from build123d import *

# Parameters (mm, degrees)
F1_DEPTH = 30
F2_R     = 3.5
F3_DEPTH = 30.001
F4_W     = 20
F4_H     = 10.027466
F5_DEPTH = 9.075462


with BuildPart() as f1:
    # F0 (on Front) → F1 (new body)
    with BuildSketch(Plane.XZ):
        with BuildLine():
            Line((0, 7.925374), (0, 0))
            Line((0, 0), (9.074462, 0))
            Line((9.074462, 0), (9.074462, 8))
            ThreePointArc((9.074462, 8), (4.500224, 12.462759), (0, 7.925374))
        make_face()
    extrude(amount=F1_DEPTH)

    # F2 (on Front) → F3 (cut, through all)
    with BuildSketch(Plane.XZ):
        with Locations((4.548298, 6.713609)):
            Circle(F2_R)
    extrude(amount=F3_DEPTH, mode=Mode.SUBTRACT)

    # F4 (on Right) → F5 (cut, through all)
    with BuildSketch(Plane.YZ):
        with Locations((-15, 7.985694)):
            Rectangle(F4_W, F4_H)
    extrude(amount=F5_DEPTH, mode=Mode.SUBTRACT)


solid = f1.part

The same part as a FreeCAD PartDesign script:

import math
import FreeCAD as App
import Part
import Sketcher
from FreeCAD import Vector


def add_polygon(sketch, points):
    """Adds a closed chain of lines whose ends are joined by coincident constraints."""
    first, n = sketch.GeometryCount, len(points)
    for a, b in zip(points, points[1:] + points[:1]):
        sketch.addGeometry(Part.LineSegment(App.Vector(*a, 0), App.Vector(*b, 0)), False)
    for i in range(n):
        sketch.addConstraint(Sketcher.Constraint("Coincident", first + i, 2, first + (i + 1) % n, 1))

doc = App.newDocument("Part")
body = doc.addObject("PartDesign::Body", "Body")

# Sketch on XZ plane
sketch1 = doc.addObject("Sketcher::SketchObject", "Sketch")
body.addObject(sketch1)
sketch1.AttachmentSupport = (doc.XZ_Plane, [""])
sketch1.MapMode = "FlatFace"
sketch1.addGeometry(Part.LineSegment(Vector(0, 7.9, 0), Vector(0, 0, 0)), False)
sketch1.addGeometry(Part.LineSegment(Vector(0, 0, 0), Vector(9.1, 0, 0)), False)
sketch1.addGeometry(Part.LineSegment(Vector(9.1, 0, 0), Vector(9.1, 8, 0)), False)
sketch1.addGeometry(Part.ArcOfCircle(Part.Circle(Vector(4.5, 7.9, 0), Vector(0, 0, 1), 4.5), math.radians(1), math.radians(180)), False)
sketch1.addConstraint(Sketcher.Constraint("Coincident", 0, 2, 1, 1))
sketch1.addConstraint(Sketcher.Constraint("Coincident", 1, 2, 2, 1))
sketch1.addConstraint(Sketcher.Constraint("Coincident", 2, 2, 3, 1))
sketch1.addConstraint(Sketcher.Constraint("Tangent", 3, 2, 0, 1))
sketch1.addConstraint(Sketcher.Constraint("Vertical", 0))
sketch1.addConstraint(Sketcher.Constraint("Horizontal", 1))
sketch1.addConstraint(Sketcher.Constraint("Vertical", 2))
sketch1.addConstraint(Sketcher.Constraint("Coincident", 0, 2, -1, 1))
sketch1.addConstraint(Sketcher.Constraint("DistanceY", 2, 1, 2, 2, 8.0))
sketch1.addConstraint(Sketcher.Constraint("Radius", 3, 4.537538))
sketch1.addConstraint(Sketcher.Constraint("DistanceX", 1, 1, 1, 2, 9.074462))
pad1 = doc.addObject("PartDesign::Pad", "Pad")
body.addObject(pad1)
pad1.Profile = sketch1
pad1.Length = 30

# Sketch on XZ plane
sketch2 = doc.addObject("Sketcher::SketchObject", "Sketch001")
body.addObject(sketch2)
sketch2.AttachmentSupport = (doc.XZ_Plane, [""])
sketch2.MapMode = "FlatFace"
sketch2.addGeometry(Part.Circle(Vector(4.5, 6.7, 0), Vector(0, 0, 1), 3.5), False)
sketch2.addConstraint(Sketcher.Constraint("Diameter", 0, 7.0))
sketch2.addConstraint(Sketcher.Constraint("DistanceY", -1, 1, 0, 3, 6.713609))
sketch2.addConstraint(Sketcher.Constraint("DistanceX", -1, 1, 0, 3, 4.548298))
pocket1 = doc.addObject("PartDesign::Pocket", "Pocket")
body.addObject(pocket1)
pocket1.Profile = sketch2
pocket1.Type = "ThroughAll"
pocket1.Reversed = True

# Sketch on YZ plane
sketch3 = doc.addObject("Sketcher::SketchObject", "Sketch002")
body.addObject(sketch3)
sketch3.AttachmentSupport = (doc.YZ_Plane, [""])
sketch3.MapMode = "FlatFace"
add_polygon(sketch3, [(-25, 13), (-25, 3), (-5, 3), (-5, 13)])  # lines 0-3
sketch3.addConstraint(Sketcher.Constraint("Vertical", 0))
sketch3.addConstraint(Sketcher.Constraint("Horizontal", 1))
sketch3.addConstraint(Sketcher.Constraint("Vertical", 2))
sketch3.addConstraint(Sketcher.Constraint("Horizontal", 3))
sketch3.addConstraint(Sketcher.Constraint("DistanceX", 1, 1, 1, 2, 20.0))
sketch3.addConstraint(Sketcher.Constraint("DistanceX", 0, 2, -1, 1, 25.0))
sketch3.addConstraint(Sketcher.Constraint("DistanceY", 0, 2, 0, 1, 10.027466))
sketch3.addConstraint(Sketcher.Constraint("DistanceY", -1, 1, 0, 2, 2.971961))
pocket2 = doc.addObject("PartDesign::Pocket", "Pocket001")
body.addObject(pocket2)
pocket2.Profile = sketch3
pocket2.Type = "ThroughAll"
pocket2.Reversed = True

doc.recompute()
